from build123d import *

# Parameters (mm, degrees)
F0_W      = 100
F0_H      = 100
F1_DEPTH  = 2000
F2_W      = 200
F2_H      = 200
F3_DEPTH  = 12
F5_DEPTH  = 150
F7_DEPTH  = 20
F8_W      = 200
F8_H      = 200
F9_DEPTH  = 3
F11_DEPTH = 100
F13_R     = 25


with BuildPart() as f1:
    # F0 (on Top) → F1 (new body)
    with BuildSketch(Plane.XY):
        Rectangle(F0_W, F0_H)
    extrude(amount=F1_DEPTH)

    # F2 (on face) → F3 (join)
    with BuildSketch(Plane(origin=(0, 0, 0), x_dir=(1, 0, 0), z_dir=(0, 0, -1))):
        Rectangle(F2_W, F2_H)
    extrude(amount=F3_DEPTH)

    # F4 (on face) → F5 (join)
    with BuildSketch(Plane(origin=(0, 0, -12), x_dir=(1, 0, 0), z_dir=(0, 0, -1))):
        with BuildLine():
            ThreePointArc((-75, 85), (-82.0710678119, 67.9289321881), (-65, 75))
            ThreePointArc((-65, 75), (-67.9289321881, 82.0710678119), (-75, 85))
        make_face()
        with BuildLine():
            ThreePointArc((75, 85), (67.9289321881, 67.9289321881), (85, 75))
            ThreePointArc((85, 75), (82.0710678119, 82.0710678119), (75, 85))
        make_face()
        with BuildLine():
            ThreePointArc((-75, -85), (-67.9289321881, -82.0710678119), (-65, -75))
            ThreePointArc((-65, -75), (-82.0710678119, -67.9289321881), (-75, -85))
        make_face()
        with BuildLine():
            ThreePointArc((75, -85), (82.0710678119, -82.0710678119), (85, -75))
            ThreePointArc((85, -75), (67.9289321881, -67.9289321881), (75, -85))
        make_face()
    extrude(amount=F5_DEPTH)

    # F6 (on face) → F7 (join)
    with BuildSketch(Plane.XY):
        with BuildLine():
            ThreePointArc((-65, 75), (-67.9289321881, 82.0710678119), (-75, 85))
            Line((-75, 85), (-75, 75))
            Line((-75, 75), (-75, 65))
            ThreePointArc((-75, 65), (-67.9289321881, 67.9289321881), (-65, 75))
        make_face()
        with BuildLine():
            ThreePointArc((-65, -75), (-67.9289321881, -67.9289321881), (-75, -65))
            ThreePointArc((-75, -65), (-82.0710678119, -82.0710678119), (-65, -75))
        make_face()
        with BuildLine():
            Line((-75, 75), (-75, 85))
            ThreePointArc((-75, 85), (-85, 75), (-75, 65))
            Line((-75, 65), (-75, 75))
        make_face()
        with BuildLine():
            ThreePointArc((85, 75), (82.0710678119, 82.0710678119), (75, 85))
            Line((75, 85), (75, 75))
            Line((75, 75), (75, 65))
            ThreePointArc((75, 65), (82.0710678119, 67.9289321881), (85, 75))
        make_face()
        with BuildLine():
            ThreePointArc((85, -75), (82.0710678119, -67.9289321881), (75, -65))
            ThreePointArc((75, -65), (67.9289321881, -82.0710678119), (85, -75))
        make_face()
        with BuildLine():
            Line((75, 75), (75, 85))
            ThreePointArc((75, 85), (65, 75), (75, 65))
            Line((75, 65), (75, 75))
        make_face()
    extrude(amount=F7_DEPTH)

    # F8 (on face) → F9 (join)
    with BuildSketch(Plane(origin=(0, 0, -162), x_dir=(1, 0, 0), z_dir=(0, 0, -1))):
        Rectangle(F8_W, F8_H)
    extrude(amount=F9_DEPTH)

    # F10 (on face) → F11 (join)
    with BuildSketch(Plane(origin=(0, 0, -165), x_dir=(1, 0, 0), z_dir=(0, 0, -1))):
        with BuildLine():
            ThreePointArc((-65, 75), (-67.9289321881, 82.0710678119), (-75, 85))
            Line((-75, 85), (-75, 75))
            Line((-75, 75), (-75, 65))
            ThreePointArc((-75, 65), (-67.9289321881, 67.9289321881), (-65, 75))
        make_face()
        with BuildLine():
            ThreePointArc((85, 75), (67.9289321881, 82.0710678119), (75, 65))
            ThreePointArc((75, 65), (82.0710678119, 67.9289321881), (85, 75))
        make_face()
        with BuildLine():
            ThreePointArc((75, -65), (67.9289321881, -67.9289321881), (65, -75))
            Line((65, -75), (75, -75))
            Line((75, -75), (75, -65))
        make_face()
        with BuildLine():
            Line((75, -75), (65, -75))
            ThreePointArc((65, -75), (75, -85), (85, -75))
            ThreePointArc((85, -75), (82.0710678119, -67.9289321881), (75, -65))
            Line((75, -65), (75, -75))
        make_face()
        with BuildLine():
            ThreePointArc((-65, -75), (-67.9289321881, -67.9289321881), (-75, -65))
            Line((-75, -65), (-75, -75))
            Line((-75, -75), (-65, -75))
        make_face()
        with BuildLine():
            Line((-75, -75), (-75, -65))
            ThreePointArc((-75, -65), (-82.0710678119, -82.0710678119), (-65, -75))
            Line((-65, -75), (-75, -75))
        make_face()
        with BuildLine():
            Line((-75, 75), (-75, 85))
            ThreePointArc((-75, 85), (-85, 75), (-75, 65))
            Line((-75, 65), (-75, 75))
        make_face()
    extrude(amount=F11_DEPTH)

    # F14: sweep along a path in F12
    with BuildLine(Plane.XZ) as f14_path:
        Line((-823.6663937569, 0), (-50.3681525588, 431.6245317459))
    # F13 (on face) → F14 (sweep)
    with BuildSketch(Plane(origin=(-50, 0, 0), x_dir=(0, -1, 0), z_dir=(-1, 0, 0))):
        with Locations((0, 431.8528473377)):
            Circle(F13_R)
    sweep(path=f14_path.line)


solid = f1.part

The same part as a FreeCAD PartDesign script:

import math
import FreeCAD as App
import Part
import Sketcher

V = App.Vector
Q = App.Units.Quantity


def add_polygon(sketch, points):
    """Adds a closed chain of lines whose ends are joined by coincident constraints."""
    first, n = sketch.GeometryCount, len(points)
    for a, b in zip(points, points[1:] + points[:1]):
        sketch.addGeometry(Part.LineSegment(App.Vector(*a, 0), App.Vector(*b, 0)), False)
    for i in range(n):
        sketch.addConstraint(Sketcher.Constraint("Coincident", first + i, 2, first + (i + 1) % n, 1))

doc = App.newDocument("Part")
params = doc.addObject("Spreadsheet::Sheet", "Params")
for row, (alias, value) in enumerate([
    ("sketch1_width", "100 mm"),
    ("pad1_length", "2000 mm"),
    ("sketch2_width", "200 mm"),
    ("pad2_length", "12 mm"),
    ("sketch3_radius", "10 mm"),
    ("pad3_length", "150 mm"),
    ("sketch4_radius", "10 mm"),
    ("pad4_length", "20 mm"),
    ("sketch5_width", "200 mm"),
    ("pad5_length", "3 mm"),
    ("sketch6_radius", "10 mm"),
    ("pad6_length", "100 mm"),
    ("sketch7_diameter", "50 mm"),
], start=1):
    params.set(f"A{row}", alias)
    params.set(f"B{row}", "=" + value)
    params.setAlias(f"B{row}", alias)

body = doc.addObject("PartDesign::Body", "Body")

sketch1 = body.newObject("Sketcher::SketchObject", "Sketch")
sketch1.AttachmentSupport = (doc.getObject("XY_Plane"), [""])
sketch1.MapMode = "FlatFace"
add_polygon(sketch1, [(-50, 50), (-50, -50), (50, -50), (50, 50)])
sketch1.addConstraint([
    Sketcher.Constraint("Vertical", 0),
    Sketcher.Constraint("Horizontal", 1),
    Sketcher.Constraint("Vertical", 2),
    Sketcher.Constraint("Horizontal", 3),
    Sketcher.Constraint("Symmetric", 0, 2, 2, 2, -1, 1),
    Sketcher.Constraint("Equal", 3, 0),
    Sketcher.Constraint("DistanceX", 1, 1, 1, 2, Q("100 mm")),
])
sketch1.setExpression("Constraints[10]", "Params.sketch1_width")
pad1 = body.newObject("PartDesign::Pad", "Pad")
pad1.Profile = sketch1
pad1.setExpression("Length", "Params.pad1_length")

sketch2 = body.newObject("Sketcher::SketchObject", "Sketch001")
sketch2.AttachmentSupport = (doc.getObject("XY_Plane"), [""])
sketch2.MapMode = "FlatFace"
add_polygon(sketch2, [(-100, -100), (-100, 100), (100, 100), (100, -100)])
sketch2.addConstraint([
    Sketcher.Constraint("Vertical", 0),
    Sketcher.Constraint("Horizontal", 1),
    Sketcher.Constraint("Vertical", 2),
    Sketcher.Constraint("Horizontal", 3),
    Sketcher.Constraint("Symmetric", 0, 2, 2, 2, -1, 1),
    Sketcher.Constraint("Equal", 3, 0),
    Sketcher.Constraint("DistanceX", 1, 1, 1, 2, Q("200 mm")),
])
sketch2.setExpression("Constraints[10]", "Params.sketch2_width")
pad2 = body.newObject("PartDesign::Pad", "Pad001")
pad2.Profile = sketch2
pad2.setExpression("Length", "Params.pad2_length")
pad2.Reversed = True

sketch3 = body.newObject("Sketcher::SketchObject", "Sketch002")
sketch3.AttachmentSupport = (doc.getObject("XY_Plane"), [""])
sketch3.MapMode = "FlatFace"
sketch3.AttachmentOffset = App.Placement(V(0, 0, -12), App.Rotation())
sketch3.addGeometry([
    Part.ArcOfCircle(Part.Circle(V(-75, -75, 0), V(0, 0, 1), 10), math.radians(0), math.radians(270)),
    Part.ArcOfCircle(Part.Circle(V(-75, -75, 0), V(0, 0, 1), 10), math.radians(-90), math.radians(0)),
    Part.ArcOfCircle(Part.Circle(V(75, -75, 0), V(0, 0, 1), 10), math.radians(0), math.radians(270)),
    Part.ArcOfCircle(Part.Circle(V(75, -75, 0), V(0, 0, 1), 10), math.radians(-90), math.radians(0)),
    Part.ArcOfCircle(Part.Circle(V(-75, 75, 0), V(0, 0, 1), 10), math.radians(0), math.radians(90)),
    Part.ArcOfCircle(Part.Circle(V(-75, 75, 0), V(0, 0, 1), 10), math.radians(90), math.radians(360)),
    Part.ArcOfCircle(Part.Circle(V(75, 75, 0), V(0, 0, 1), 10), math.radians(0), math.radians(90)),
    Part.ArcOfCircle(Part.Circle(V(75, 75, 0), V(0, 0, 1), 10), math.radians(90), math.radians(360)),
], False)
sketch3.addConstraint([
    Sketcher.Constraint("Tangent", 0, 1, 1, 2),
    Sketcher.Constraint("Coincident", 1, 1, 0, 2),
    Sketcher.Constraint("Tangent", 2, 1, 3, 2),
    Sketcher.Constraint("Coincident", 3, 1, 2, 2),
    Sketcher.Constraint("Tangent", 4, 1, 5, 2),
    Sketcher.Constraint("Coincident", 5, 1, 4, 2),
    Sketcher.Constraint("Tangent", 6, 1, 7, 2),
    Sketcher.Constraint("Coincident", 7, 1, 6, 2),
    Sketcher.Constraint("Equal", 1, 2),
    Sketcher.Constraint("Equal", 3, 4),
    Sketcher.Constraint("Equal", 5, 6),
    Sketcher.Constraint("Symmetric", 2, 3, 4, 3, -1, 1),
    Sketcher.Constraint("Symmetric", 0, 3, 6, 3, -1, 1),
    Sketcher.Constraint("Symmetric", 0, 3, 2, 3, -2),
    Sketcher.Constraint("Horizontal", 3, 3, 0, 1),
    Sketcher.Constraint("Horizontal", 0, 1, 2, 1),
    Sketcher.Constraint("Horizontal", 7, 3, 4, 1),
    Sketcher.Constraint("Horizontal", 4, 1, 6, 1),
    Sketcher.Constraint("Vertical", 5, 3, 1, 1),
    Sketcher.Constraint("Vertical", 7, 3, 3, 1),
    Sketcher.Constraint("Vertical", 1, 1, 5, 1),
    Sketcher.Constraint("Vertical", 3, 1, 7, 1),
    Sketcher.Constraint("Radius", 0, Q("10 mm")),
    Sketcher.Constraint("DistanceX", 0, 3, -1, 1, Q("75 mm")),
    Sketcher.Constraint("DistanceY", 0, 3, -1, 1, Q("75 mm")),
])
sketch3.setExpression("Constraints[22]", "Params.sketch3_radius")
pad3 = body.newObject("PartDesign::Pad", "Pad002")
pad3.Profile = sketch3
pad3.setExpression("Length", "Params.pad3_length")
pad3.Reversed = True

sketch4 = body.newObject("Sketcher::SketchObject", "Sketch003")
sketch4.AttachmentSupport = (doc.getObject("XY_Plane"), [""])
sketch4.MapMode = "FlatFace"
sketch4.addGeometry([
    Part.ArcOfCircle(Part.Circle(V(-75, 75, 0), V(0, 0, 1), 10), math.radians(0), math.radians(90)),
    Part.ArcOfCircle(Part.Circle(V(-75, 75, 0), V(0, 0, 1), 10), math.radians(90), math.radians(270)),
    Part.ArcOfCircle(Part.Circle(V(-75, 75, 0), V(0, 0, 1), 10), math.radians(-90), math.radians(0)),
    Part.ArcOfCircle(Part.Circle(V(-75, -75, 0), V(0, 0, 1), 10), math.radians(0), math.radians(90)),
    Part.ArcOfCircle(Part.Circle(V(-75, -75, 0), V(0, 0, 1), 10), math.radians(90), math.radians(360)),
    Part.ArcOfCircle(Part.Circle(V(75, 75, 0), V(0, 0, 1), 10), math.radians(0), math.radians(90)),
    Part.ArcOfCircle(Part.Circle(V(75, 75, 0), V(0, 0, 1), 10), math.radians(90), math.radians(270)),
    Part.ArcOfCircle(Part.Circle(V(75, 75, 0), V(0, 0, 1), 10), math.radians(-90), math.radians(0)),
    Part.ArcOfCircle(Part.Circle(V(75, -75, 0), V(0, 0, 1), 10), math.radians(0), math.radians(90)),
    Part.ArcOfCircle(Part.Circle(V(75, -75, 0), V(0, 0, 1), 10), math.radians(90), math.radians(360)),
], False)
sketch4.addConstraint([
    Sketcher.Constraint("Tangent", 0, 2, 1, 1),
    Sketcher.Constraint("Tangent", 1, 2, 2, 1),
    Sketcher.Constraint("Tangent", 2, 2, 0, 1),
    Sketcher.Constraint("Tangent", 3, 1, 4, 2),
    Sketcher.Constraint("Coincident", 4, 1, 3, 2),
    Sketcher.Constraint("Tangent", 5, 2, 6, 1),
    Sketcher.Constraint("Tangent", 6, 2, 7, 1),
    Sketcher.Constraint("Tangent", 7, 2, 5, 1),
    Sketcher.Constraint("Tangent", 8, 1, 9, 2),
    Sketcher.Constraint("Coincident", 9, 1, 8, 2),
    Sketcher.Constraint("Equal", 2, 3),
    Sketcher.Constraint("Equal", 4, 5),
    Sketcher.Constraint("Equal", 7, 8),
    Sketcher.Constraint("Symmetric", 3, 3, 5, 3, -1, 1),
    Sketcher.Constraint("Symmetric", 0, 3, 8, 3, -1, 1),
    Sketcher.Constraint("Symmetric", 0, 3, 5, 3, -2),
    Sketcher.Constraint("Horizontal", 7, 3, 2, 2),
    Sketcher.Constraint("Horizontal", 9, 3, 3, 1),
    Sketcher.Constraint("Horizontal", 2, 2, 7, 2),
    Sketcher.Constraint("Horizontal", 3, 1, 8, 1),
    Sketcher.Constraint("Vertical", 4, 3, 0, 2),
    Sketcher.Constraint("Vertical", 0, 2, 1, 2),
    Sketcher.Constraint("Vertical", 1, 2, 4, 1),
    Sketcher.Constraint("Vertical", 9, 3, 5, 2),
    Sketcher.Constraint("Vertical", 5, 2, 6, 2),
    Sketcher.Constraint("Vertical", 6, 2, 9, 1),
    Sketcher.Constraint("Radius", 0, Q("10 mm")),
    Sketcher.Constraint("DistanceX", 0, 3, -1, 1, Q("75 mm")),
    Sketcher.Constraint("DistanceY", -1, 1, 0, 3, Q("75 mm")),
])
sketch4.setExpression("Constraints[26]", "Params.sketch4_radius")
pad4 = body.newObject("PartDesign::Pad", "Pad003")
pad4.Profile = sketch4
pad4.setExpression("Length", "Params.pad4_length")

sketch5 = body.newObject("Sketcher::SketchObject", "Sketch004")
sketch5.AttachmentSupport = (doc.getObject("XY_Plane"), [""])
sketch5.MapMode = "FlatFace"
sketch5.AttachmentOffset = App.Placement(V(0, 0, -162), App.Rotation())
add_polygon(sketch5, [(-100, -100), (-100, 100), (100, 100), (100, -100)])
sketch5.addConstraint([
    Sketcher.Constraint("Vertical", 0),
    Sketcher.Constraint("Horizontal", 1),
    Sketcher.Constraint("Vertical", 2),
    Sketcher.Constraint("Horizontal", 3),
    Sketcher.Constraint("Symmetric", 0, 2, 2, 2, -1, 1),
    Sketcher.Constraint("Equal", 3, 0),
    Sketcher.Constraint("DistanceX", 1, 1, 1, 2, Q("200 mm")),
])
sketch5.setExpression("Constraints[10]", "Params.sketch5_width")
pad5 = body.newObject("PartDesign::Pad", "Pad004")
pad5.Profile = sketch5
pad5.setExpression("Length", "Params.pad5_length")
pad5.Reversed = True

sketch6 = body.newObject("Sketcher::SketchObject", "Sketch005")
sketch6.AttachmentSupport = (doc.getObject("XY_Plane"), [""])
sketch6.MapMode = "FlatFace"
sketch6.AttachmentOffset = App.Placement(V(0, 0, -165), App.Rotation())
sketch6.addGeometry([
    Part.ArcOfCircle(Part.Circle(V(-75, -75, 0), V(0, 0, 1), 10), math.radians(-90), math.radians(0)),
    Part.ArcOfCircle(Part.Circle(V(-75, -75, 0), V(0, 0, 1), 10), math.radians(90), math.radians(270)),
    Part.ArcOfCircle(Part.Circle(V(-75, -75, 0), V(0, 0, 1), 10), math.radians(0), math.radians(90)),
    Part.ArcOfCircle(Part.Circle(V(75, -75, 0), V(0, 0, 1), 10), math.radians(90), math.radians(360)),
    Part.ArcOfCircle(Part.Circle(V(75, -75, 0), V(0, 0, 1), 10), math.radians(0), math.radians(90)),
    Part.ArcOfCircle(Part.Circle(V(75, 75, 0), V(0, 0, 1), 10), math.radians(180), math.radians(270)),
    Part.ArcOfCircle(Part.Circle(V(75, 75, 0), V(0, 0, 1), 10), math.radians(0), math.radians(180)),
    Part.ArcOfCircle(Part.Circle(V(75, 75, 0), V(0, 0, 1), 10), math.radians(-90), math.radians(0)),
    Part.ArcOfCircle(Part.Circle(V(-75, 75, 0), V(0, 0, 1), 10), math.radians(-90), math.radians(0)),
    Part.ArcOfCircle(Part.Circle(V(-75, 75, 0), V(0, 0, 1), 10), math.radians(0), math.radians(270)),
], False)
sketch6.addConstraint([
    Sketcher.Constraint("Tangent", 0, 1, 1, 2),
    Sketcher.Constraint("Tangent", 1, 1, 2, 2),
    Sketcher.Constraint("Tangent", 2, 1, 0, 2),
    Sketcher.Constraint("Tangent", 3, 1, 4, 2),
    Sketcher.Constraint("Coincident", 4, 1, 3, 2),
    Sketcher.Constraint("Tangent", 5, 1, 6, 2),
    Sketcher.Constraint("Tangent", 6, 1, 7, 2),
    Sketcher.Constraint("Tangent", 7, 1, 5, 2),
    Sketcher.Constraint("Tangent", 8, 1, 9, 2),
    Sketcher.Constraint("Coincident", 9, 1, 8, 2),
    Sketcher.Constraint("Equal", 2, 3),
    Sketcher.Constraint("Equal", 4, 5),
    Sketcher.Constraint("Equal", 7, 8),
    Sketcher.Constraint("Symmetric", 0, 3, 5, 3, -1, 1),
    Sketcher.Constraint("Symmetric", 3, 3, 8, 3, -1, 1),
    Sketcher.Constraint("Symmetric", 0, 3, 3, 3, -2),
    Sketcher.Constraint("Horizontal", 4, 3, 2, 1),
    Sketcher.Constraint("Horizontal", 2, 1, 4, 1),
    Sketcher.Constraint("Horizontal", 9, 3, 5, 1),
    Sketcher.Constraint("Horizontal", 5, 1, 6, 1),
    Sketcher.Constraint("Horizontal", 6, 1, 9, 1),
    Sketcher.Constraint("Vertical", 9, 3, 0, 1),
    Sketcher.Constraint("Vertical", 0, 1, 1, 1),
    Sketcher.Constraint("Vertical", 7, 3, 3, 1),
    Sketcher.Constraint("Vertical", 3, 1, 7, 1),
    Sketcher.Constraint("Vertical", 1, 1, 8, 1),
    Sketcher.Constraint("Radius", 0, Q("10 mm")),
    Sketcher.Constraint("DistanceX", 0, 3, -1, 1, Q("75 mm")),
    Sketcher.Constraint("DistanceY", 0, 3, -1, 1, Q("75 mm")),
])
sketch6.setExpression("Constraints[26]", "Params.sketch6_radius")
pad6 = body.newObject("PartDesign::Pad", "Pad005")
pad6.Profile = sketch6
pad6.setExpression("Length", "Params.pad6_length")
pad6.Reversed = True

sketch7 = body.newObject("Sketcher::SketchObject", "Sketch006")
sketch7.AttachmentSupport = (doc.getObject("YZ_Plane"), [""])
sketch7.MapMode = "FlatFace"
sketch7.AttachmentOffset = App.Placement(V(0, 0, -50), App.Rotation())
sketch7.addGeometry(Part.Circle(V(0, 432, 0), V(0, 0, 1), 25), False)
sketch7.addConstraint([
    Sketcher.Constraint("PointOnObject", 0, 3, -2),
    Sketcher.Constraint("Diameter", 0, Q("50 mm")),
    Sketcher.Constraint("DistanceY", -1, 1, 0, 3, Q("431.852847 mm")),
])
sketch7.setExpression("Constraints[1]", "Params.sketch7_diameter")

sketch8 = body.newObject("Sketcher::SketchObject", "Sketch007")
sketch8.Placement = App.Placement(V(-195.653203, 0, 350.532156), App.Rotation(V(0.873189912, 0, 0.487380116), V(0, 1, 0), V(-0.487380116, 0, 0.873189912), "ZXY"))
sketch8.addGeometry(Part.LineSegment(V(-719, 0, 0), V(166, 0, 0)), False)
sketch8.addConstraint([
    Sketcher.Constraint("Horizontal", 0),
    Sketcher.Constraint("PointOnObject", 0, 1, -1),
    Sketcher.Constraint("DistanceX", 0, 1, 0, 2, Q("885.601437 mm")),
    Sketcher.Constraint("DistanceX", -1, 1, 0, 2, Q("166.384252 mm")),
])
doc.recompute()

additivepipe = body.newObject("PartDesign::AdditivePipe", "AdditivePipe")
additivepipe.Profile = sketch7
additivepipe.Spine = (sketch8, ["Edge1"])

doc.recompute()
